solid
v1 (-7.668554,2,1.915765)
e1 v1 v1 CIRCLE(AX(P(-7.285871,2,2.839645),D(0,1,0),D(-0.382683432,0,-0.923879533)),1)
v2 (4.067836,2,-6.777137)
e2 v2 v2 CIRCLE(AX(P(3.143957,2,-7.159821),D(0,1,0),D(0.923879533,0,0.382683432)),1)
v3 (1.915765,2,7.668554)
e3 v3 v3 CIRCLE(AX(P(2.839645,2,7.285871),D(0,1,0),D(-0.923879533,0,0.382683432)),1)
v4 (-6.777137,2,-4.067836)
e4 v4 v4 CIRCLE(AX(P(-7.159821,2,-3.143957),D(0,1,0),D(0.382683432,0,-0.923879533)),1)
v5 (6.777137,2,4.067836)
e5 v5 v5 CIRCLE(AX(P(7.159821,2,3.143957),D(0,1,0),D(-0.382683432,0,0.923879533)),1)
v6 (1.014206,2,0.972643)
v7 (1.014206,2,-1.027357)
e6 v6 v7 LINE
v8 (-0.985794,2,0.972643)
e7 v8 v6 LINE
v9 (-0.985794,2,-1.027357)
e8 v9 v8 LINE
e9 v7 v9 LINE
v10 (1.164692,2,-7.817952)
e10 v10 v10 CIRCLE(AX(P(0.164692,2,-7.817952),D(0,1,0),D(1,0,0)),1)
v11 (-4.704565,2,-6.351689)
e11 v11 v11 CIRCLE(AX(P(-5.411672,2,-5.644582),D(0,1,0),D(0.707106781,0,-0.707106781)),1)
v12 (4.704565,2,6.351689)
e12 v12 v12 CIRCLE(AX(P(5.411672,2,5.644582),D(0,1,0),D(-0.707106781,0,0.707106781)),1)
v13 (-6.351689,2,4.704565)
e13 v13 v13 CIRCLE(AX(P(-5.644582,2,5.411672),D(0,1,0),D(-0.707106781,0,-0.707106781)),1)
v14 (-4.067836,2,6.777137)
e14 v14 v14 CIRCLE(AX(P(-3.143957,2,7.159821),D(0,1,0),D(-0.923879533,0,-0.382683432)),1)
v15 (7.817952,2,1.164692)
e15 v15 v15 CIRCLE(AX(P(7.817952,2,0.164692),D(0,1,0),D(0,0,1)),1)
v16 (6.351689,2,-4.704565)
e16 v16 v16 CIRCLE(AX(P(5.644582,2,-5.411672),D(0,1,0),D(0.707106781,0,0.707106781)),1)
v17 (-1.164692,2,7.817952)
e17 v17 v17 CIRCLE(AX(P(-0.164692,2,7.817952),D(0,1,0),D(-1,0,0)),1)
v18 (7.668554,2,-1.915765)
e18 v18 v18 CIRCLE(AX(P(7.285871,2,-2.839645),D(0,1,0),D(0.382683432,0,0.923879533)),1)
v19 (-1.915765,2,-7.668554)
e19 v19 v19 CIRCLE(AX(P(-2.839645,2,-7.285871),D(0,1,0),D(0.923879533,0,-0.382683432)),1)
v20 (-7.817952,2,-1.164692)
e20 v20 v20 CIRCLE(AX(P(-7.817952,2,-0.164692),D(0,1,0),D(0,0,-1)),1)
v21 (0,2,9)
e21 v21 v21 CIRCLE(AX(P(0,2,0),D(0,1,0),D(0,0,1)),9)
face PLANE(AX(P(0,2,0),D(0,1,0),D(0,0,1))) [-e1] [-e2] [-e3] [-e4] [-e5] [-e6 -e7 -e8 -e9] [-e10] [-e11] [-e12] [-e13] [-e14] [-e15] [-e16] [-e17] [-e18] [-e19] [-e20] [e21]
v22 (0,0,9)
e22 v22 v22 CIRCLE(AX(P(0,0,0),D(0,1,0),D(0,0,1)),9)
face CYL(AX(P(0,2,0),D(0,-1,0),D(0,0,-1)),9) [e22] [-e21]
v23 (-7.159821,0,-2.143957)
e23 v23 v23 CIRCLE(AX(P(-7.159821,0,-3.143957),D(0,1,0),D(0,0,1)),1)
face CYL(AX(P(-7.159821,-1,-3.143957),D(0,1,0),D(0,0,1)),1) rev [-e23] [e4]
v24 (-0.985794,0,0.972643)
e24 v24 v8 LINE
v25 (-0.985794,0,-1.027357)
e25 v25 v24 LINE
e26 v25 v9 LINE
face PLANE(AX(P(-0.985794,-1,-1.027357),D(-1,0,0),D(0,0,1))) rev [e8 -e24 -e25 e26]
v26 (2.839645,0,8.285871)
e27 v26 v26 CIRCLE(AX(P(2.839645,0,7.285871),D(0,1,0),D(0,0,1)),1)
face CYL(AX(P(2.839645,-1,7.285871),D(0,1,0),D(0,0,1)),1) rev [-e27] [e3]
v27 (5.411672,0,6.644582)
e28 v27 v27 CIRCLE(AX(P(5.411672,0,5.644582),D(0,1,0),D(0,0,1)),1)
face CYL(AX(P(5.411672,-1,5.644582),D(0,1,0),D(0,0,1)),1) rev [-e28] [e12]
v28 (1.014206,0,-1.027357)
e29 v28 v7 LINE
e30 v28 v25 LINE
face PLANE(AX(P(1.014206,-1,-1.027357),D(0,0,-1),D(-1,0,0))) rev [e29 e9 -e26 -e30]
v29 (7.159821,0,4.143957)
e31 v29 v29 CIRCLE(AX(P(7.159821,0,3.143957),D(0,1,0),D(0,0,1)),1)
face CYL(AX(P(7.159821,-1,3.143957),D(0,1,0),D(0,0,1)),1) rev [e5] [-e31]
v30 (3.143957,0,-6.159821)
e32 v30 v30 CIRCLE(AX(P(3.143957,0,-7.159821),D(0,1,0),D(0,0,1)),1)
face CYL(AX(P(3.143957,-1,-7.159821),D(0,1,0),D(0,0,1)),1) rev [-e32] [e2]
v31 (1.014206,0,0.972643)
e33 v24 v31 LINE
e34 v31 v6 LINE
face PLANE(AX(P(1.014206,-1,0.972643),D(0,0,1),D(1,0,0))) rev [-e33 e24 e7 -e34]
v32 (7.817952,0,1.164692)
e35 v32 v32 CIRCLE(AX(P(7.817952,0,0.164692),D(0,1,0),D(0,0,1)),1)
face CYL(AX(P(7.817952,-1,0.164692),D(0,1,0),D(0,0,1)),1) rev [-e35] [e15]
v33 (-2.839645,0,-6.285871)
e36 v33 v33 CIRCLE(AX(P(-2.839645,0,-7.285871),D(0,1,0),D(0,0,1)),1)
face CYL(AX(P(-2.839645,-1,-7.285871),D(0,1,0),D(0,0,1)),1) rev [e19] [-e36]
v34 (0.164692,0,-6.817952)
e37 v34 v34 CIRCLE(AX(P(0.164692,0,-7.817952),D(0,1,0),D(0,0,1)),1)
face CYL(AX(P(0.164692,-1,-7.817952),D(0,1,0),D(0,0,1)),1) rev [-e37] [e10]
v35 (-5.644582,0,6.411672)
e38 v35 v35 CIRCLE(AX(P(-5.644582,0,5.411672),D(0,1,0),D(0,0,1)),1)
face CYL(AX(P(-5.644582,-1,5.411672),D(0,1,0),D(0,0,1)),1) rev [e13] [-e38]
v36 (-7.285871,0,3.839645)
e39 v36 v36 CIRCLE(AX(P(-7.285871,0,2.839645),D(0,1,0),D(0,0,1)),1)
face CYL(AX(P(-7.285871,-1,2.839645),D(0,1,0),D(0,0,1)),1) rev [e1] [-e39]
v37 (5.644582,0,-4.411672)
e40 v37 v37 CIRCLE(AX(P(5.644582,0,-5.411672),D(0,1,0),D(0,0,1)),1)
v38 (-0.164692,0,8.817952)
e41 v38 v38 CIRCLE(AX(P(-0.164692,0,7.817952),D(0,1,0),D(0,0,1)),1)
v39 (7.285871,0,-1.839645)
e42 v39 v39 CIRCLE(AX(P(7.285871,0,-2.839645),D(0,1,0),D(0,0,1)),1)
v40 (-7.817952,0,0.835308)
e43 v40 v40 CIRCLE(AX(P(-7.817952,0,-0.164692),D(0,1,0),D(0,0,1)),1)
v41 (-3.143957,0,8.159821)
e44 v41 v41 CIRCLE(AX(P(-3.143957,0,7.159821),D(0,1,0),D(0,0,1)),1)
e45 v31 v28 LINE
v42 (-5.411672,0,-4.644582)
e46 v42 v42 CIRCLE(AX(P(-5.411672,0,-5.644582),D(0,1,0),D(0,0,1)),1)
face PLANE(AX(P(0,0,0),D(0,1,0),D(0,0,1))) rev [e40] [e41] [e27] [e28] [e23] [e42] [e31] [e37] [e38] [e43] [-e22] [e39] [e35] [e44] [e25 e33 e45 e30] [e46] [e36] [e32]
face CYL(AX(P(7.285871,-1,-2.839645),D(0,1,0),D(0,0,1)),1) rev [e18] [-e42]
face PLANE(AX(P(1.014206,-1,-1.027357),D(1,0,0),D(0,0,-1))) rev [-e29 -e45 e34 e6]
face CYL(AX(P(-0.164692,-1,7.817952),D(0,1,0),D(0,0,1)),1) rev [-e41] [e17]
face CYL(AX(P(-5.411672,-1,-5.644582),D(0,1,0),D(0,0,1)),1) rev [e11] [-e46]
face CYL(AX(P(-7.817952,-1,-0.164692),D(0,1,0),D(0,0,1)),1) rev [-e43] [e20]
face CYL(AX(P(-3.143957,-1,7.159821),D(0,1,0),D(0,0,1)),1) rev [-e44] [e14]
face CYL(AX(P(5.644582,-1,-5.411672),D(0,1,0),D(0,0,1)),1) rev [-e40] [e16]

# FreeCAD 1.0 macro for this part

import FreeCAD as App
import Part
import Sketcher
from FreeCAD import Vector
Q = App.Units.Quantity

doc = App.newDocument("Part")
body = doc.addObject("PartDesign::Body", "Body")

sketch1 = doc.addObject("Sketcher::SketchObject", "Sketch")
body.addObject(sketch1)
sketch1.AttachmentSupport = (doc.XZ_Plane, [""])
sketch1.MapMode = "FlatFace"
sketch1.addGeometry(Part.Circle(Vector(0, 0, 0), Vector(0, 0, 1), 9), False)
sketch1.addConstraint([
    Sketcher.Constraint("Coincident", 0, 3, -1, 1),
    Sketcher.Constraint("Diameter", 0, Q("18 mm")),
])
pad1 = doc.addObject("PartDesign::Pad", "Pad")
body.addObject(pad1)
pad1.Profile = sketch1
pad1.Length = 2
pad1.Reversed = True

sketch2 = doc.addObject("Sketcher::SketchObject", "Sketch001")
body.addObject(sketch2)
sketch2.AttachmentSupport = (doc.XZ_Plane, [""])
sketch2.MapMode = "FlatFace"
sketch2.AttachmentOffset = App.Placement(Vector(0, 0, -2), App.Rotation())
sketch2.addGeometry([
    Part.LineSegment(Vector(-1, -1, 0), Vector(-1, 1, 0)),
    Part.LineSegment(Vector(-1, 1, 0), Vector(1, 1, 0)),
    Part.LineSegment(Vector(1, 1, 0), Vector(1, -1, 0)),
    Part.LineSegment(Vector(1, -1, 0), Vector(-1, -1, 0)),
], False)
sketch2.addConstraint([
    Sketcher.Constraint("Coincident", 0, 2, 1, 1),
    Sketcher.Constraint("Coincident", 1, 2, 2, 1),
    Sketcher.Constraint("Coincident", 2, 2, 3, 1),
    Sketcher.Constraint("Coincident", 3, 2, 0, 1),
    Sketcher.Constraint("Vertical", 0),
    Sketcher.Constraint("Horizontal", 1),
    Sketcher.Constraint("Vertical", 2),
    Sketcher.Constraint("Horizontal", 3),
    Sketcher.Constraint("Equal", 3, 0),
    Sketcher.Constraint("DistanceX", 1, 1, 1, 2, Q("2 mm")),
    Sketcher.Constraint("DistanceX", 0, 2, -1, 1, Q("0.985794 mm")),
    Sketcher.Constraint("DistanceY", -1, 1, 0, 2, Q("0.972643 mm")),
])
pocket1 = doc.addObject("PartDesign::Pocket", "Pocket")
body.addObject(pocket1)
pocket1.Profile = sketch2
pocket1.Length = 3
pocket1.Reversed = True

sketch3 = doc.addObject("Sketcher::SketchObject", "Sketch002")
body.addObject(sketch3)
sketch3.AttachmentSupport = (doc.XZ_Plane, [""])
sketch3.MapMode = "FlatFace"
sketch3.AttachmentOffset = App.Placement(Vector(0, 0, -2), App.Rotation())
sketch3.addGeometry(Part.Circle(Vector(7.8, 0.2, 0), Vector(0, 0, 1), 1), False)
sketch3.addConstraint([
    Sketcher.Constraint("Diameter", 0, Q("2 mm")),
    Sketcher.Constraint("DistanceX", -1, 1, 0, 3, Q("7.817952 mm")),
    Sketcher.Constraint("DistanceY", -1, 1, 0, 3, Q("0.164692 mm")),
])
pocket2 = doc.addObject("PartDesign::Pocket", "Pocket001")
body.addObject(pocket2)
pocket2.Profile = sketch3
pocket2.Length = 3
pocket2.Reversed = True
doc.recompute()

polarpattern = doc.addObject("PartDesign::PolarPattern", "PolarPattern")
body.addObject(polarpattern)
polarpattern.Originals = [pocket2]
polarpattern.Axis = (doc.Y_Axis, [""])
polarpattern.Angle = 360
polarpattern.Occurrences = 16
body.Tip = polarpattern

doc.recompute()
